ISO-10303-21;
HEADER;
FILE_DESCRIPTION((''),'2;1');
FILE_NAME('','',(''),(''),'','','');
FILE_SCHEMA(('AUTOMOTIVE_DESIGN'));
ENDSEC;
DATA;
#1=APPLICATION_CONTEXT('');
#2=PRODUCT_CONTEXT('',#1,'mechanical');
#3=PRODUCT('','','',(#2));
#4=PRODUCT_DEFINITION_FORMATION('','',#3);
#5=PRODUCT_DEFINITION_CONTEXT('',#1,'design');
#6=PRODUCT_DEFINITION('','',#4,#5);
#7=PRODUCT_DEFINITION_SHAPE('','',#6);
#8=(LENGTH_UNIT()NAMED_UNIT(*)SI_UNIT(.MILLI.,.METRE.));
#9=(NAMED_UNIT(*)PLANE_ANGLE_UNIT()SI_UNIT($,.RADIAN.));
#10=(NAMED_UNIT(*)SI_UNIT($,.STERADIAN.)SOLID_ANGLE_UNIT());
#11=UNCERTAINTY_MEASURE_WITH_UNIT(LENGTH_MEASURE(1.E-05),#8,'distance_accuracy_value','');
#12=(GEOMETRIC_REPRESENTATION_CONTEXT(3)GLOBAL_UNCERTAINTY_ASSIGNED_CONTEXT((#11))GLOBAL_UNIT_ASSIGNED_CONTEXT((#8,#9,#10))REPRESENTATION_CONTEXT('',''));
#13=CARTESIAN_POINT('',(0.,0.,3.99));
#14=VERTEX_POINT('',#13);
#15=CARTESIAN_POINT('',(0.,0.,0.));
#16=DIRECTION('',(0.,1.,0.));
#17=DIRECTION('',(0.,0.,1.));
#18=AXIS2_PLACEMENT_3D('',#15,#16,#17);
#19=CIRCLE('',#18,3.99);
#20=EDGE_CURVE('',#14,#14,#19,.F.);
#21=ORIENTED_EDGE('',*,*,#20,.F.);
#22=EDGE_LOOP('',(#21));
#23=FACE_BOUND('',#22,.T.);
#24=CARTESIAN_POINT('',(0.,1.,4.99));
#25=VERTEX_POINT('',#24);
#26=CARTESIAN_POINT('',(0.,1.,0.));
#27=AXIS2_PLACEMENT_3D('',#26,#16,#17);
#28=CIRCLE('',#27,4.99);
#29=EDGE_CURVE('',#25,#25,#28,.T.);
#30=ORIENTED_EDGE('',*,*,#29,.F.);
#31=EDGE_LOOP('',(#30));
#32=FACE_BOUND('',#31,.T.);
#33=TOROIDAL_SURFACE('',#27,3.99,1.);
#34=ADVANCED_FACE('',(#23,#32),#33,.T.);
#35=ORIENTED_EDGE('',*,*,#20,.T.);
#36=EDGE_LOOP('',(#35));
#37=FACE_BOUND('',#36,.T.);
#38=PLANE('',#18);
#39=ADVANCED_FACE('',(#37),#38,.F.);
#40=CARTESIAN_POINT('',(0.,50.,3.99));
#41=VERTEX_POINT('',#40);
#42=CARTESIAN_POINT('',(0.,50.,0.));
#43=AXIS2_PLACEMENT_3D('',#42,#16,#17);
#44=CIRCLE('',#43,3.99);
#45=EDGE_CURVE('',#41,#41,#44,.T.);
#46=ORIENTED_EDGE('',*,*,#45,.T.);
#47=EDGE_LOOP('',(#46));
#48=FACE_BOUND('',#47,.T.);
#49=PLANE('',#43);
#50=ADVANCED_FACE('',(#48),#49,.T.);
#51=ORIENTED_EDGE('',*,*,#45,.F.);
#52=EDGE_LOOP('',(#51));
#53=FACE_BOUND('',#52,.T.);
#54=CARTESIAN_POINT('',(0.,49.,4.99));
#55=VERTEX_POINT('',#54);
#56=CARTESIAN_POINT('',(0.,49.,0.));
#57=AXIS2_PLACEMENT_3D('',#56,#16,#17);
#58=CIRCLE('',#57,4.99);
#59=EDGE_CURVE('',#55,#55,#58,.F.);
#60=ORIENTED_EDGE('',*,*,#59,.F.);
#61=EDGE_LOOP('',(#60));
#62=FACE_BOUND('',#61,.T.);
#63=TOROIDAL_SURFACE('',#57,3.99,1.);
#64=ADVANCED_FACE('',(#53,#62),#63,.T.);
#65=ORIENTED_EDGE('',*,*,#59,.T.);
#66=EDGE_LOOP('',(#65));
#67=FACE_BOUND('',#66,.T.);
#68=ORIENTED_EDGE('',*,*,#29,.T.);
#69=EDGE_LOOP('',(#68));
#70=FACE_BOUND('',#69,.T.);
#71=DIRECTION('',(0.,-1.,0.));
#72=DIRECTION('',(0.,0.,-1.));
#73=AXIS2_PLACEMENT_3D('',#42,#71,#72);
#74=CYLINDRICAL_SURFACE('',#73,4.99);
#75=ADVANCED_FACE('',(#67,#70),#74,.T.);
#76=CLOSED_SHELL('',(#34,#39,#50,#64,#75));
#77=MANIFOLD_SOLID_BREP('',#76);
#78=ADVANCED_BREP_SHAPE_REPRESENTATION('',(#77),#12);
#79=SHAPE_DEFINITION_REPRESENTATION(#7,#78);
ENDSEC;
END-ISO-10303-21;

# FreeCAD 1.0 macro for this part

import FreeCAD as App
import Part
import Sketcher
Q = App.Units.Quantity


def edges_at(feature, points):
    """Names of the edges that pass closest to the given points."""
    edges = feature.Shape.Edges
    near = lambda p: min(range(len(edges)), key=lambda i: edges[i].distToShape(Part.Vertex(*p))[0])
    return sorted({f"Edge{near(p) + 1}" for p in points})

doc = App.newDocument("Part")
body = doc.addObject("PartDesign::Body", "Body")

# Sketch on XZ plane
sketch1 = body.newObject("Sketcher::SketchObject", "Sketch")
sketch1.AttachmentSupport = (doc.getObject("XZ_Plane"), [""])
sketch1.MapMode = "FlatFace"
sketch1.addGeometry(Part.Circle(App.Vector(0, 0, 0), App.Vector(0, 0, 1), 5), False)
sketch1.addConstraint(Sketcher.Constraint("Coincident", 0, 3, -1, 1))
sketch1.addConstraint(Sketcher.Constraint("Diameter", 0, Q("9.98 mm")))
pad1 = body.newObject("PartDesign::Pad", "Pad")
pad1.Profile = sketch1
pad1.Length = 50
pad1.Reversed = True
doc.recompute()

fillet = body.newObject("PartDesign::Fillet", "Fillet")
fillet.Base = (pad1, edges_at(pad1, [(-4.99, 0, 0), (-4.99, 50, 0)]))
fillet.Radius = 1

doc.recompute()
